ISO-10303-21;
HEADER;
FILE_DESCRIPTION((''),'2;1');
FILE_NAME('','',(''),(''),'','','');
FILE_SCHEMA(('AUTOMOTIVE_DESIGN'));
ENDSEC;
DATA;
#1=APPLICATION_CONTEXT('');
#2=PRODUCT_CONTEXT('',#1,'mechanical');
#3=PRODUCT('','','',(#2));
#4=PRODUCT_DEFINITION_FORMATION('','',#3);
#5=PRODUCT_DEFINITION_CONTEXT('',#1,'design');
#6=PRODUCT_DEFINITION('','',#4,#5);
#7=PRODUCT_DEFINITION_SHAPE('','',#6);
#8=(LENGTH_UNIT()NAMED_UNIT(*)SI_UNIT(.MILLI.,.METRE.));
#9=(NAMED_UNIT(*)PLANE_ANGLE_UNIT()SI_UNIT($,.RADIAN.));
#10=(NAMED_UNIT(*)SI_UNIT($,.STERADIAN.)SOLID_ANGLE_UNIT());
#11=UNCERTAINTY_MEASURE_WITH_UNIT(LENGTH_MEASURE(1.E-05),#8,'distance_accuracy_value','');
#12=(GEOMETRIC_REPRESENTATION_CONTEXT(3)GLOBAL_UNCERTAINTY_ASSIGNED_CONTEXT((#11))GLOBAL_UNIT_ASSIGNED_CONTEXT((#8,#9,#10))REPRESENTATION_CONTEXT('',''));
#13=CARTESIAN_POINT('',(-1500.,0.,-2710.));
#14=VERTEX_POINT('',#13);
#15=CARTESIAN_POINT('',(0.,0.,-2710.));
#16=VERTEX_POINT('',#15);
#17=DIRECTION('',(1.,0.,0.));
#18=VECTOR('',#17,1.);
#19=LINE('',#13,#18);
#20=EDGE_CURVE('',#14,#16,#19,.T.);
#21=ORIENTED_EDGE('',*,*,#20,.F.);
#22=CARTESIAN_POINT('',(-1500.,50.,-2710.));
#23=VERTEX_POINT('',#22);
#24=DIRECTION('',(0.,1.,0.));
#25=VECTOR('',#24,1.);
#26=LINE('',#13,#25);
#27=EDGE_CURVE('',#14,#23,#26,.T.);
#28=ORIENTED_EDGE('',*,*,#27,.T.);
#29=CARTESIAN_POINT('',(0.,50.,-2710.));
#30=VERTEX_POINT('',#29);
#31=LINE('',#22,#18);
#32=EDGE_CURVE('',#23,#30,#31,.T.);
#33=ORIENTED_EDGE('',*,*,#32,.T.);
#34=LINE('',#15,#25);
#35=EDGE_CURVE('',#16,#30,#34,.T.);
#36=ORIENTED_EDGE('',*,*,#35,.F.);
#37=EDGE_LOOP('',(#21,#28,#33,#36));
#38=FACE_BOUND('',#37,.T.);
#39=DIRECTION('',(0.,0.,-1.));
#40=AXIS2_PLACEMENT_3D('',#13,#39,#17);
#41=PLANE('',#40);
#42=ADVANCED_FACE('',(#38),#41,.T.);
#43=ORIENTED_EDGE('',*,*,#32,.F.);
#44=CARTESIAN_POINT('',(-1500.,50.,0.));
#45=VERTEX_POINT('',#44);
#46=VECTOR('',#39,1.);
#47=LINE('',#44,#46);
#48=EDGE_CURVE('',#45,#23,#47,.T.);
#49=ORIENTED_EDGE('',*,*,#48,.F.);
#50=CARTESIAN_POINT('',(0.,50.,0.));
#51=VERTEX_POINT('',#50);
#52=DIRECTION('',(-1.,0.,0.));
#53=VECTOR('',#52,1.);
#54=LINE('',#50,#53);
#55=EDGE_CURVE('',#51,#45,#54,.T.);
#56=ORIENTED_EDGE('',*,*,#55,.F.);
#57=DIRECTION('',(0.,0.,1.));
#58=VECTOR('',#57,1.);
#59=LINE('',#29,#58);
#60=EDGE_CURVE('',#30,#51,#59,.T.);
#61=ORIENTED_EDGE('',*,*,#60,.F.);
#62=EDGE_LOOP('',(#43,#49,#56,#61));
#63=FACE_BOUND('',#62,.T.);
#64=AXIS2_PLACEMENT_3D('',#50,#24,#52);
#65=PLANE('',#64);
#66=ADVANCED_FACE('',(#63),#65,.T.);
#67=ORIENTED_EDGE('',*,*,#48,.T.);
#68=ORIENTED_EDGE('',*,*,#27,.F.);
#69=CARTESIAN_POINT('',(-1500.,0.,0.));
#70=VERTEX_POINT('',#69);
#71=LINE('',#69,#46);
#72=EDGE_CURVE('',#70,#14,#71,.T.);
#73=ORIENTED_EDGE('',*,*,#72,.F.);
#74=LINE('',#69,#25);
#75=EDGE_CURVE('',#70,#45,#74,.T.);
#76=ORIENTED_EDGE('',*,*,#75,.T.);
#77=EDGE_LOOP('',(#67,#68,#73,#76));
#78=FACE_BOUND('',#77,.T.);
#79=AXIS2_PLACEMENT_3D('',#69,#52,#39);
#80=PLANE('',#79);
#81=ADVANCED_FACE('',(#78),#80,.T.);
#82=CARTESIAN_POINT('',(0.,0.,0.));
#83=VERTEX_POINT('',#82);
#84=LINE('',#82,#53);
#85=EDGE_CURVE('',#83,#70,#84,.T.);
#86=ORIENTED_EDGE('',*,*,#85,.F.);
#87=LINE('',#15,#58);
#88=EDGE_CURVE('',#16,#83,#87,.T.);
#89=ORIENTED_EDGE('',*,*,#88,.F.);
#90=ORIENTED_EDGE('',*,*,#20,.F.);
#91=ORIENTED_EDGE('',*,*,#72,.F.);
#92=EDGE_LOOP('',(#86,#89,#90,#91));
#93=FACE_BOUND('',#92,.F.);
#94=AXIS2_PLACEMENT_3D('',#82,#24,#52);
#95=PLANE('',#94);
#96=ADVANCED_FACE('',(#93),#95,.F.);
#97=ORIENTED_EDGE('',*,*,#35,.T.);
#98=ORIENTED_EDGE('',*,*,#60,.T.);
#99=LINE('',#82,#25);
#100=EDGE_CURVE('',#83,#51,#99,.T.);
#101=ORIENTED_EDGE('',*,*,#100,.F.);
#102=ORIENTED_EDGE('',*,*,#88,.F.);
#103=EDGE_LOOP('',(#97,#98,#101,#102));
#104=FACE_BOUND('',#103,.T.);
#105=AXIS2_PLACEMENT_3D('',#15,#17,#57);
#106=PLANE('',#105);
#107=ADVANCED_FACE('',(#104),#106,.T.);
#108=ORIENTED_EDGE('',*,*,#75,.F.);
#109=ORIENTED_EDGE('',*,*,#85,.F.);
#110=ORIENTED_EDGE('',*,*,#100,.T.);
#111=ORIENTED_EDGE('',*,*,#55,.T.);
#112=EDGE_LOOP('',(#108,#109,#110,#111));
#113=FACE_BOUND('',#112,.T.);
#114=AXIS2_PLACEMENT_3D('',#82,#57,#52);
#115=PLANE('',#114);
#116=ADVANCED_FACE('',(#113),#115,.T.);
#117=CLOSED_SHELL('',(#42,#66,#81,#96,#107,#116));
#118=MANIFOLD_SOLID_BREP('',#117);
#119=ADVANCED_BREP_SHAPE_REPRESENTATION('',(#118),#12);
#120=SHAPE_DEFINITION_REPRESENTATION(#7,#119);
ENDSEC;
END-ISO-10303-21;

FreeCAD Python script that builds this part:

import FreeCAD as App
import Part
import Sketcher
from FreeCAD import Vector
Q = App.Units.Quantity


def add_polygon(sketch, points):
    """Adds a closed chain of lines whose ends are joined by coincident constraints."""
    first, n = sketch.GeometryCount, len(points)
    for a, b in zip(points, points[1:] + points[:1]):
        sketch.addGeometry(Part.LineSegment(App.Vector(*a, 0), App.Vector(*b, 0)), False)
    for i in range(n):
        sketch.addConstraint(Sketcher.Constraint("Coincident", first + i, 2, first + (i + 1) % n, 1))

doc = App.newDocument("Part")
params = doc.addObject("Spreadsheet::Sheet", "Params")
for row, (alias, value) in enumerate([
    ("sketch1_width", "1500 mm"),
    ("sketch1_height", "2710 mm"),
    ("pad1_length", "50 mm"),
], start=1):
    params.set(f"A{row}", alias)
    params.set(f"B{row}", "=" + value)
    params.setAlias(f"B{row}", alias)

body = doc.addObject("PartDesign::Body", "Body")

# Sketch on XZ plane
sketch1 = body.newObject("Sketcher::SketchObject", "Sketch")
sketch1.AttachmentSupport = (doc.getObject("XZ_Plane"), [""])
sketch1.MapMode = "FlatFace"
add_polygon(sketch1, [(-1500, 0), (0, 0), (0, -2710), (-1500, -2710)])  # lines 0-3
sketch1.addConstraint([
    Sketcher.Constraint("Horizontal", 0),
    Sketcher.Constraint("Vertical", 1),
    Sketcher.Constraint("Horizontal", 2),
    Sketcher.Constraint("Vertical", 3),
    Sketcher.Constraint("Coincident", 0, 2, -1, 1),
    Sketcher.Constraint("DistanceX", 0, 1, 0, 2, Q("1500 mm")),
    Sketcher.Constraint("DistanceY", 1, 2, 1, 1, Q("2710 mm")),
])
sketch1.setExpression("Constraints[9]", "Params.sketch1_width")
sketch1.setExpression("Constraints[10]", "Params.sketch1_height")
pad1 = body.newObject("PartDesign::Pad", "Pad")
pad1.Profile = sketch1
pad1.setExpression("Length", "Params.pad1_length")
pad1.Reversed = True

doc.recompute()
